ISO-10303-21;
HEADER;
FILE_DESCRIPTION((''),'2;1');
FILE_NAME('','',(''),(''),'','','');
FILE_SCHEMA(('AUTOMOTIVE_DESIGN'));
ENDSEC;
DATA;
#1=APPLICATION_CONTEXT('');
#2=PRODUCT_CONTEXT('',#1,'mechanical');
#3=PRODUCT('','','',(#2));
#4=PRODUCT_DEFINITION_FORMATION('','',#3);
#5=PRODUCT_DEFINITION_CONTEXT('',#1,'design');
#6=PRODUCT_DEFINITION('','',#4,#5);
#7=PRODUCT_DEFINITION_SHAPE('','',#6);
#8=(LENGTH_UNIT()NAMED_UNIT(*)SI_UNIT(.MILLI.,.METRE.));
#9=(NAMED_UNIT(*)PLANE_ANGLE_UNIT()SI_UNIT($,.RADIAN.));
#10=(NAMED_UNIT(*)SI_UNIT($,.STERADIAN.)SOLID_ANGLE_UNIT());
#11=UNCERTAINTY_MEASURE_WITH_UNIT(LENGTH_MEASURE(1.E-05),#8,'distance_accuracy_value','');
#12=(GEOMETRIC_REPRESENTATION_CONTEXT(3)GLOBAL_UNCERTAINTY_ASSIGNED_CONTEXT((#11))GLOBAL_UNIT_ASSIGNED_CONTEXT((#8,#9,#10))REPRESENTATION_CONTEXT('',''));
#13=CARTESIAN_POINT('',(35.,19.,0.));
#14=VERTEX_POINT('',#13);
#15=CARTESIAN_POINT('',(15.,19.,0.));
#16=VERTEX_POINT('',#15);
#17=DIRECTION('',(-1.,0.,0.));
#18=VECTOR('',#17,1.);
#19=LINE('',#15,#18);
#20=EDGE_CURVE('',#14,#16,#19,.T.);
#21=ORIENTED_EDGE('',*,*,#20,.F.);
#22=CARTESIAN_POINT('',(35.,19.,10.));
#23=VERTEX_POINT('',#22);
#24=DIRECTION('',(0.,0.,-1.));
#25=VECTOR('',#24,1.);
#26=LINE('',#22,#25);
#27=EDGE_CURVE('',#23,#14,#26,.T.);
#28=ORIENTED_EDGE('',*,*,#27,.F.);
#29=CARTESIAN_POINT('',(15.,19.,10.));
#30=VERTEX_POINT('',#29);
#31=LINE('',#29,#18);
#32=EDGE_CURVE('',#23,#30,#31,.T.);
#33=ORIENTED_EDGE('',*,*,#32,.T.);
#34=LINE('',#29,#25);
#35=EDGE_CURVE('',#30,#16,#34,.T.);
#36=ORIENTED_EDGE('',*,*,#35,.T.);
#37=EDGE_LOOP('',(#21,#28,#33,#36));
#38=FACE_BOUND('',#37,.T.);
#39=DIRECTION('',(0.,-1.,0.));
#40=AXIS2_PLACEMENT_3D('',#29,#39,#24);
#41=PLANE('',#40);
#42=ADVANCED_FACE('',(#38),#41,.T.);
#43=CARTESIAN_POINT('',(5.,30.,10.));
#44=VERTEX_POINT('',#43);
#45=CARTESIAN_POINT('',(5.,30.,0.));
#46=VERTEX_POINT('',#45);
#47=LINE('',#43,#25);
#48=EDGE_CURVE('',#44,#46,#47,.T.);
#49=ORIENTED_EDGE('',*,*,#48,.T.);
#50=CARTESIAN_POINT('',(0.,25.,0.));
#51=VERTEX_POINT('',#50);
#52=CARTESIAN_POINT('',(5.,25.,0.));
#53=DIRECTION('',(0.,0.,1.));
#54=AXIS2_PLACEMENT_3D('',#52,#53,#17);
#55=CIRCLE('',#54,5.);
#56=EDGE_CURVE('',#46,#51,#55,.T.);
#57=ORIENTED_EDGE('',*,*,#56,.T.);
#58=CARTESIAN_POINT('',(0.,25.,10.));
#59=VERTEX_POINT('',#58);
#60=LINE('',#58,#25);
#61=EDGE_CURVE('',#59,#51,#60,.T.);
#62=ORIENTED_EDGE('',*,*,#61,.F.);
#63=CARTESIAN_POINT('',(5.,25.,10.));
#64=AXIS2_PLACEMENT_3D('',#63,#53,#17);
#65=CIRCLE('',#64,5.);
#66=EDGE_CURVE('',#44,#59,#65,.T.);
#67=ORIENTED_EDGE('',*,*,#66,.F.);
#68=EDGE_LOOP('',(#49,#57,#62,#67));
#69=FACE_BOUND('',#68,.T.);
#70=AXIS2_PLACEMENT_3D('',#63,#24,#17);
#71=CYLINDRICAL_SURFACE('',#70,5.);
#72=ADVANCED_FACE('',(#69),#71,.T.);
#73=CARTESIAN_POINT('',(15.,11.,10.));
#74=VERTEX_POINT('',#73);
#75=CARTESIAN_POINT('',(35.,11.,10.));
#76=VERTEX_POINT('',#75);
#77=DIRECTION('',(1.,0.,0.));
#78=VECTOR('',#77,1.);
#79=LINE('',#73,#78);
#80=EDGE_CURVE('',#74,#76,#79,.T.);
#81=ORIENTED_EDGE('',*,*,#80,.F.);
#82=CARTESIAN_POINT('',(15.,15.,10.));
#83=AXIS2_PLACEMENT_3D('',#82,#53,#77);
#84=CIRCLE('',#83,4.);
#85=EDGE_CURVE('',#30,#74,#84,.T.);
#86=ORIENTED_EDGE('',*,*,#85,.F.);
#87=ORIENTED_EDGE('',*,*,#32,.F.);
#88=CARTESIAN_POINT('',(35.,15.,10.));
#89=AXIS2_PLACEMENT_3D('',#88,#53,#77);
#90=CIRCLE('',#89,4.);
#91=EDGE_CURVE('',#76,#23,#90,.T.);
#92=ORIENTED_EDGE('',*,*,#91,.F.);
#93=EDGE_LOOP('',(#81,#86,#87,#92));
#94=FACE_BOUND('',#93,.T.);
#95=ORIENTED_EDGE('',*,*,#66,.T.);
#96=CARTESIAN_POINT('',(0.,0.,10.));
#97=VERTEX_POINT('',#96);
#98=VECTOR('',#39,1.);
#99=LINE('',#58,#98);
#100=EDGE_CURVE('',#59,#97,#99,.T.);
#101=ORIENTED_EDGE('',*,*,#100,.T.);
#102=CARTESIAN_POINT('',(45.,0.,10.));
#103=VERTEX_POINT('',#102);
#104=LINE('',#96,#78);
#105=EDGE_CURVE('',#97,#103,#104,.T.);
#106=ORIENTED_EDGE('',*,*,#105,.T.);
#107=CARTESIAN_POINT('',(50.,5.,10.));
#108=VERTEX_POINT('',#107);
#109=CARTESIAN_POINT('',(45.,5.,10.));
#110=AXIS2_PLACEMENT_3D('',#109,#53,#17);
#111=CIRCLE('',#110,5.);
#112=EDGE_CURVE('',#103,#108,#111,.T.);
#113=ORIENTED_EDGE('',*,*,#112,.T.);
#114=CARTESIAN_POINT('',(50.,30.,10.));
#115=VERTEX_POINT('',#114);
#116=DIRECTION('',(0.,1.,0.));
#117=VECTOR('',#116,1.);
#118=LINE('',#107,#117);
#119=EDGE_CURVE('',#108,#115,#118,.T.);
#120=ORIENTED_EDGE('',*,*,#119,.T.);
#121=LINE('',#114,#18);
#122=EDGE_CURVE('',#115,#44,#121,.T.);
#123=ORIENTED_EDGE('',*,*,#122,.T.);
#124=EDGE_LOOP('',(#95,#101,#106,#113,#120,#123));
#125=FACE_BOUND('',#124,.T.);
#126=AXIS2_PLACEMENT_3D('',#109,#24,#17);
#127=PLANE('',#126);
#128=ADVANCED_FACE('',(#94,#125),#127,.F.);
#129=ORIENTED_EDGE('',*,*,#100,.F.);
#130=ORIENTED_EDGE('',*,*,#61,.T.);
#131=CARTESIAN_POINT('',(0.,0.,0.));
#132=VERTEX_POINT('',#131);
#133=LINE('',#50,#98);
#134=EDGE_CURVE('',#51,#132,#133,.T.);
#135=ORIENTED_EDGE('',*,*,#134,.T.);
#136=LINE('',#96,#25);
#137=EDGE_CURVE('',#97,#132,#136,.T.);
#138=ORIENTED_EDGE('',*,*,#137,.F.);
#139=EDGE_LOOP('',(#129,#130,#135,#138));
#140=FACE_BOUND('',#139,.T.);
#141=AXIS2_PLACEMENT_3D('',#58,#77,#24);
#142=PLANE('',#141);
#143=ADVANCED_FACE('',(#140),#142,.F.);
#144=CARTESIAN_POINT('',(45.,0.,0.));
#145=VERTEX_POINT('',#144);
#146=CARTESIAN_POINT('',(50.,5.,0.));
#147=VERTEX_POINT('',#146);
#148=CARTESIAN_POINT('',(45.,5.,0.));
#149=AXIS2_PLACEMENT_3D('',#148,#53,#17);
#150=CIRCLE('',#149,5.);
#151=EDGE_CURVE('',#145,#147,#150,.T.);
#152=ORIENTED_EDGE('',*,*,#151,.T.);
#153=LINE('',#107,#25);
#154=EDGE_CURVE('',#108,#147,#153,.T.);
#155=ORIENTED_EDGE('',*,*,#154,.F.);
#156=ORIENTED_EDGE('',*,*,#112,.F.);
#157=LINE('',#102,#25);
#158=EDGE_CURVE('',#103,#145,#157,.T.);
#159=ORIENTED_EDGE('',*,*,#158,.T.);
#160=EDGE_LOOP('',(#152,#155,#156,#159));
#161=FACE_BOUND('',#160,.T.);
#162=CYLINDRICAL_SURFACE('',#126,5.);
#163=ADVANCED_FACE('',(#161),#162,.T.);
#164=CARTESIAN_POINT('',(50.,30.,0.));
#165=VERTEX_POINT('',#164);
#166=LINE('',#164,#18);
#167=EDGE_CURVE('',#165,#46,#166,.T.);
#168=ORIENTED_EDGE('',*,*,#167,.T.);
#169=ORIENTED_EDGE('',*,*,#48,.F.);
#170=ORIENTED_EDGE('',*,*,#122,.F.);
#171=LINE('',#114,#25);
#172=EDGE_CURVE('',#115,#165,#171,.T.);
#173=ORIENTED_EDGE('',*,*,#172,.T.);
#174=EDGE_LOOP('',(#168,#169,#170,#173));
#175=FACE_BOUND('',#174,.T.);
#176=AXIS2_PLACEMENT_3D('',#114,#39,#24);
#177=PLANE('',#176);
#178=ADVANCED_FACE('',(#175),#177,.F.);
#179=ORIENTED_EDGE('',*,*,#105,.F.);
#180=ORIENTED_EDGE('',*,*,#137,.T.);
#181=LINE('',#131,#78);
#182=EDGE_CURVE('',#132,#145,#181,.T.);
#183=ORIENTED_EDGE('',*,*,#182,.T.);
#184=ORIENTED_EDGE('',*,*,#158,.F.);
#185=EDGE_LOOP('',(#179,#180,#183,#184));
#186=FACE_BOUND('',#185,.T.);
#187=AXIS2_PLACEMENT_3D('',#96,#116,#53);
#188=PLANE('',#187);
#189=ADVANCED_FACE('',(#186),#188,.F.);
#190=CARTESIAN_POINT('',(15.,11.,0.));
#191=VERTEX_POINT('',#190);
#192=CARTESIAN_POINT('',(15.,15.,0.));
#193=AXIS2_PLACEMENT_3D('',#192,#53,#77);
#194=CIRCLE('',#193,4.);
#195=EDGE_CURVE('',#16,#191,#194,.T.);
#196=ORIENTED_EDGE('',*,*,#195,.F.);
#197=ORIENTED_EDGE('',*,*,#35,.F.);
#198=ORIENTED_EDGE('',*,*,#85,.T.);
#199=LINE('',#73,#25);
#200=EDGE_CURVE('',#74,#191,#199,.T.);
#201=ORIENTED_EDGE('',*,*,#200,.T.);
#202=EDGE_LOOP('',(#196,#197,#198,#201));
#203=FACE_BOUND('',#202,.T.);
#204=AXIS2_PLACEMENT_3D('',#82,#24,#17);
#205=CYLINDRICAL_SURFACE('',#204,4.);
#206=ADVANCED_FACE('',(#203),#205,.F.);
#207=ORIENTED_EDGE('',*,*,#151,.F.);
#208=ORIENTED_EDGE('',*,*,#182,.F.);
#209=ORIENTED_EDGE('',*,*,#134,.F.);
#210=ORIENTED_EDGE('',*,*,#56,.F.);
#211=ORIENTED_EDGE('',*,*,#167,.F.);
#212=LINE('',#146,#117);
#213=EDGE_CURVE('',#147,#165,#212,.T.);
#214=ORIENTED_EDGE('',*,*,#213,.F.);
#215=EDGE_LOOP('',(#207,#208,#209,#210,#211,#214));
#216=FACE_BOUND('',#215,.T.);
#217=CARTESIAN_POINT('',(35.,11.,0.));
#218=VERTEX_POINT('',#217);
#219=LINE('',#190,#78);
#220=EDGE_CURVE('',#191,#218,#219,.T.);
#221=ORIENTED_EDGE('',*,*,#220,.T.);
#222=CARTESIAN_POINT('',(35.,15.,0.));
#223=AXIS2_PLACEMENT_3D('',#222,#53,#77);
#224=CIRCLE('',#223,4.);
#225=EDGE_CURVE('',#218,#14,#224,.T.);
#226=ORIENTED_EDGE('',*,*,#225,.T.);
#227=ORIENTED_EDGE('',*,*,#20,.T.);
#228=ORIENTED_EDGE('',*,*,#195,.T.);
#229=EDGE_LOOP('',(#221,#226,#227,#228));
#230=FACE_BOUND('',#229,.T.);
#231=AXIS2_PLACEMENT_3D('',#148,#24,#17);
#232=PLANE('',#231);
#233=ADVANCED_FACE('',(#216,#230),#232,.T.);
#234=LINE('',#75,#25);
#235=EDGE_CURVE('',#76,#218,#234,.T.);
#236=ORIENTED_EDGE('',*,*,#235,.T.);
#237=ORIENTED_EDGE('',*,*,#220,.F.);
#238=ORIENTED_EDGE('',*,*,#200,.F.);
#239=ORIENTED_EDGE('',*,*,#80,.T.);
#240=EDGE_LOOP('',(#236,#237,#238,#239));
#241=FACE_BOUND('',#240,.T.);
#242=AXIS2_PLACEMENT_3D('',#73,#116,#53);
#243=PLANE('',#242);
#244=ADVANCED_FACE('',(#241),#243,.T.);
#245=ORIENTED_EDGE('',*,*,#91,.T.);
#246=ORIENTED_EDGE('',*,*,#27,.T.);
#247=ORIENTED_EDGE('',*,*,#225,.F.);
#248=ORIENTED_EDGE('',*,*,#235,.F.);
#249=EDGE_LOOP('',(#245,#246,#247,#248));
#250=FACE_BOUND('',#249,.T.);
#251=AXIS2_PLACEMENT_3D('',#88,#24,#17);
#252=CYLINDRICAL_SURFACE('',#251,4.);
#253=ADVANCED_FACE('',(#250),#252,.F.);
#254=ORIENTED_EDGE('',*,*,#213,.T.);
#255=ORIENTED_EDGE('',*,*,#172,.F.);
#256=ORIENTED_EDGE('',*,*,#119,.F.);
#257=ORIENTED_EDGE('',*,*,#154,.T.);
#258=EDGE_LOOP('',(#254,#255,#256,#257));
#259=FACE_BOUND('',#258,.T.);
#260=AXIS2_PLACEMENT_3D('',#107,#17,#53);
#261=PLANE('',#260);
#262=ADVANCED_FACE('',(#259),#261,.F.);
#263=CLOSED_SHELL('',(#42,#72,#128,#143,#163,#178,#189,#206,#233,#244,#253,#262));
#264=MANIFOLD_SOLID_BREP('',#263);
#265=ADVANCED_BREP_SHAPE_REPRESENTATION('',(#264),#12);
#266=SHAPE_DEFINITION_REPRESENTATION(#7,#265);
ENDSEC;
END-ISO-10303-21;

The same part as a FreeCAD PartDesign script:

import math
import FreeCAD as App
import Part
import Sketcher

V = App.Vector
Q = App.Units.Quantity

doc = App.newDocument("Part")
params = doc.addObject("Spreadsheet::Sheet", "Params")
for row, (alias, value) in enumerate([
    ("sketch1_radius", "5 mm"),
    ("sketch1_radius2", "4 mm"),
    ("sketch1_width", "45 mm"),
    ("sketch1_width2", "20 mm"),
    ("sketch1_height", "25 mm"),
    ("pad1_length", "10 mm"),
], start=1):
    params.set(f"A{row}", alias)
    params.set(f"B{row}", "=" + value)
    params.setAlias(f"B{row}", alias)

body = doc.addObject("PartDesign::Body", "Body")

sketch1 = body.newObject("Sketcher::SketchObject", "Sketch")
sketch1.AttachmentSupport = (doc.getObject("XY_Plane"), [""])
sketch1.MapMode = "FlatFace"
sketch1.addGeometry([
    Part.LineSegment(V(0, 0, 0), V(45, 0, 0)),
    Part.ArcOfCircle(Part.Circle(V(45, 5, 0), V(0, 0, 1), 5), math.radians(-90), math.radians(0)),
    Part.LineSegment(V(50, 5, 0), V(50, 30, 0)),
    Part.LineSegment(V(50, 30, 0), V(5, 30, 0)),
    Part.ArcOfCircle(Part.Circle(V(5, 25, 0), V(0, 0, 1), 5), math.radians(90), math.radians(180)),
    Part.LineSegment(V(0, 25, 0), V(0, 0, 0)),
    Part.ArcOfCircle(Part.Circle(V(15, 15, 0), V(0, 0, 1), 4), math.radians(90), math.radians(270)),
    Part.LineSegment(V(15, 19, 0), V(35, 19, 0)),
    Part.ArcOfCircle(Part.Circle(V(35, 15, 0), V(0, 0, 1), 4), math.radians(-90), math.radians(90)),
    Part.LineSegment(V(35, 11, 0), V(15, 11, 0)),
], False)
sketch1.addConstraint([
    Sketcher.Constraint("Tangent", 0, 2, 1, 1),
    Sketcher.Constraint("Tangent", 1, 2, 2, 1),
    Sketcher.Constraint("Coincident", 2, 2, 3, 1),
    Sketcher.Constraint("Tangent", 3, 2, 4, 1),
    Sketcher.Constraint("Tangent", 4, 2, 5, 1),
    Sketcher.Constraint("Coincident", 5, 2, 0, 1),
    Sketcher.Constraint("Tangent", 6, 1, 7, 1),
    Sketcher.Constraint("Tangent", 7, 2, 8, 2),
    Sketcher.Constraint("Tangent", 8, 1, 9, 1),
    Sketcher.Constraint("Tangent", 9, 2, 6, 2),
    Sketcher.Constraint("Horizontal", 0),
    Sketcher.Constraint("Vertical", 2),
    Sketcher.Constraint("Horizontal", 3),
    Sketcher.Constraint("Vertical", 5),
    Sketcher.Constraint("Horizontal", 7),
    Sketcher.Constraint("Horizontal", 9),
    Sketcher.Constraint("Coincident", 5, 2, -1, 1),
    Sketcher.Constraint("Equal", 1, 4),
    Sketcher.Constraint("Radius", 1, Q("5 mm")),
    Sketcher.Constraint("Radius", 6, Q("4 mm")),
    Sketcher.Constraint("DistanceX", 0, 1, 0, 2, Q("45 mm")),
    Sketcher.Constraint("DistanceX", 7, 1, 7, 2, Q("20 mm")),
    Sketcher.Constraint("DistanceY", 2, 1, 2, 2, Q("25 mm")),
    Sketcher.Constraint("DistanceX", -1, 1, 6, 3, Q("15 mm")),
    Sketcher.Constraint("DistanceY", -1, 1, 6, 3, Q("15 mm")),
])
sketch1.setExpression("Constraints[18]", "Params.sketch1_radius")
sketch1.setExpression("Constraints[19]", "Params.sketch1_radius2")
sketch1.setExpression("Constraints[20]", "Params.sketch1_width")
sketch1.setExpression("Constraints[21]", "Params.sketch1_width2")
sketch1.setExpression("Constraints[22]", "Params.sketch1_height")
pad1 = body.newObject("PartDesign::Pad", "Pad")
pad1.Profile = sketch1
pad1.setExpression("Length", "Params.pad1_length")

doc.recompute()
